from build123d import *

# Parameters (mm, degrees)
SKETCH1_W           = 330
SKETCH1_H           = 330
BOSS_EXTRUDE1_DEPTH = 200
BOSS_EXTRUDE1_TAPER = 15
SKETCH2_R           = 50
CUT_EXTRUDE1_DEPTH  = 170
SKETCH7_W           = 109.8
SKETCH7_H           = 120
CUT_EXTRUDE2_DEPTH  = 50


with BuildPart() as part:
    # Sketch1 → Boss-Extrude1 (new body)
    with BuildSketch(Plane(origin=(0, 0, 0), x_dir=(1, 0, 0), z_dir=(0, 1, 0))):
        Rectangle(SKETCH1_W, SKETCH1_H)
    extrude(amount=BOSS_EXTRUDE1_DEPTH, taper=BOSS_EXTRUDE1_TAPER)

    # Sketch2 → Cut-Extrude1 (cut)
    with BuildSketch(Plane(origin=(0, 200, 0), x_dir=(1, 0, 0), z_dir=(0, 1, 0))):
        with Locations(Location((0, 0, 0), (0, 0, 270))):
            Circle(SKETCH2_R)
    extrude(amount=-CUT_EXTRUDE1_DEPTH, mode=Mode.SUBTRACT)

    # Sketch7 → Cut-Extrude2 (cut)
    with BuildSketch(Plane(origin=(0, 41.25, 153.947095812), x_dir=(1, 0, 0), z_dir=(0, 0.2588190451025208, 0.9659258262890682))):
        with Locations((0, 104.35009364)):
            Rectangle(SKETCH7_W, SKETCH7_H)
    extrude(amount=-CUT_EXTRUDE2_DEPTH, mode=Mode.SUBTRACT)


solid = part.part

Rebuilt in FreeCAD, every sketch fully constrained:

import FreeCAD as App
import Part
import Sketcher

doc = App.newDocument("Part")
body = doc.addObject("PartDesign::Body", "Body")

# Sketch on XZ plane
sketch1 = doc.addObject("Sketcher::SketchObject", "Sketch")
body.addObject(sketch1)
sketch1.AttachmentSupport = (doc.XZ_Plane, [""])
sketch1.MapMode = "FlatFace"
sketch1.addGeometry(Part.LineSegment(App.Vector(-165, -165, 0), App.Vector(-165, 165, 0)), False)
sketch1.addGeometry(Part.LineSegment(App.Vector(-165, 165, 0), App.Vector(165, 165, 0)), False)
sketch1.addGeometry(Part.LineSegment(App.Vector(165, 165, 0), App.Vector(165, -165, 0)), False)
sketch1.addGeometry(Part.LineSegment(App.Vector(165, -165, 0), App.Vector(-165, -165, 0)), False)
sketch1.addConstraint(Sketcher.Constraint("Coincident", 0, 2, 1, 1))
sketch1.addConstraint(Sketcher.Constraint("Coincident", 1, 2, 2, 1))
sketch1.addConstraint(Sketcher.Constraint("Coincident", 2, 2, 3, 1))
sketch1.addConstraint(Sketcher.Constraint("Coincident", 3, 2, 0, 1))
sketch1.addConstraint(Sketcher.Constraint("Vertical", 0))
sketch1.addConstraint(Sketcher.Constraint("Horizontal", 1))
sketch1.addConstraint(Sketcher.Constraint("Vertical", 2))
sketch1.addConstraint(Sketcher.Constraint("Horizontal", 3))
sketch1.addConstraint(Sketcher.Constraint("Symmetric", 0, 2, 2, 2, -1, 1))
sketch1.addConstraint(Sketcher.Constraint("Equal", 3, 0))
sketch1.addConstraint(Sketcher.Constraint("DistanceX", 1, 1, 1, 2, 330.0))
pad1 = doc.addObject("PartDesign::Pad", "Pad")
body.addObject(pad1)
pad1.Profile = sketch1
pad1.Length = 200
pad1.Reversed = True
pad1.TaperAngle = -15

# Sketch on XZ plane
sketch2 = doc.addObject("Sketcher::SketchObject", "Sketch001")
body.addObject(sketch2)
sketch2.AttachmentSupport = (doc.XZ_Plane, [""])
sketch2.MapMode = "FlatFace"
sketch2.AttachmentOffset = App.Placement(App.Vector(0, 0, -200), App.Rotation())
sketch2.addGeometry(Part.Circle(App.Vector(0, 0, 0), App.Vector(0, 0, 1), 50), False)
sketch2.addConstraint(Sketcher.Constraint("Coincident", 0, 3, -1, 1))
sketch2.addConstraint(Sketcher.Constraint("Diameter", 0, 100.0))
pocket1 = doc.addObject("PartDesign::Pocket", "Pocket")
body.addObject(pocket1)
pocket1.Profile = sketch2
pocket1.Length = 170
pocket1.Reversed = True

# Sketch on an angled plane
sketch3 = doc.addObject("Sketcher::SketchObject", "Sketch002")
body.addObject(sketch3)
sketch3.Placement = App.Placement(App.Vector(0, 41.25, 153.947096), App.Rotation(App.Vector(1, 0, 0), App.Vector(0, 0.965925826, -0.258819045), App.Vector(0, 0.258819045, 0.965925826), "ZXY"))
sketch3.addGeometry(Part.LineSegment(App.Vector(-55, 164, 0), App.Vector(-55, 44, 0)), False)
sketch3.addGeometry(Part.LineSegment(App.Vector(-55, 44, 0), App.Vector(55, 44, 0)), False)
sketch3.addGeometry(Part.LineSegment(App.Vector(55, 44, 0), App.Vector(55, 164, 0)), False)
sketch3.addGeometry(Part.LineSegment(App.Vector(55, 164, 0), App.Vector(-55, 164, 0)), False)
sketch3.addConstraint(Sketcher.Constraint("Coincident", 0, 2, 1, 1))
sketch3.addConstraint(Sketcher.Constraint("Coincident", 1, 2, 2, 1))
sketch3.addConstraint(Sketcher.Constraint("Coincident", 2, 2, 3, 1))
sketch3.addConstraint(Sketcher.Constraint("Coincident", 3, 2, 0, 1))
sketch3.addConstraint(Sketcher.Constraint("Vertical", 0))
sketch3.addConstraint(Sketcher.Constraint("Horizontal", 1))
sketch3.addConstraint(Sketcher.Constraint("Vertical", 2))
sketch3.addConstraint(Sketcher.Constraint("Horizontal", 3))
sketch3.addConstraint(Sketcher.Constraint("DistanceY", 0, 2, 0, 1, 120.0))
sketch3.addConstraint(Sketcher.Constraint("DistanceX", 1, 1, 1, 2, 109.8))
sketch3.addConstraint(Sketcher.Constraint("DistanceX", 0, 2, -1, 1, 54.9))
sketch3.addConstraint(Sketcher.Constraint("DistanceY", -1, 1, 0, 2, 44.350094))
pocket2 = doc.addObject("PartDesign::Pocket", "Pocket001")
body.addObject(pocket2)
pocket2.Profile = sketch3
pocket2.Length = 50

doc.recompute()
